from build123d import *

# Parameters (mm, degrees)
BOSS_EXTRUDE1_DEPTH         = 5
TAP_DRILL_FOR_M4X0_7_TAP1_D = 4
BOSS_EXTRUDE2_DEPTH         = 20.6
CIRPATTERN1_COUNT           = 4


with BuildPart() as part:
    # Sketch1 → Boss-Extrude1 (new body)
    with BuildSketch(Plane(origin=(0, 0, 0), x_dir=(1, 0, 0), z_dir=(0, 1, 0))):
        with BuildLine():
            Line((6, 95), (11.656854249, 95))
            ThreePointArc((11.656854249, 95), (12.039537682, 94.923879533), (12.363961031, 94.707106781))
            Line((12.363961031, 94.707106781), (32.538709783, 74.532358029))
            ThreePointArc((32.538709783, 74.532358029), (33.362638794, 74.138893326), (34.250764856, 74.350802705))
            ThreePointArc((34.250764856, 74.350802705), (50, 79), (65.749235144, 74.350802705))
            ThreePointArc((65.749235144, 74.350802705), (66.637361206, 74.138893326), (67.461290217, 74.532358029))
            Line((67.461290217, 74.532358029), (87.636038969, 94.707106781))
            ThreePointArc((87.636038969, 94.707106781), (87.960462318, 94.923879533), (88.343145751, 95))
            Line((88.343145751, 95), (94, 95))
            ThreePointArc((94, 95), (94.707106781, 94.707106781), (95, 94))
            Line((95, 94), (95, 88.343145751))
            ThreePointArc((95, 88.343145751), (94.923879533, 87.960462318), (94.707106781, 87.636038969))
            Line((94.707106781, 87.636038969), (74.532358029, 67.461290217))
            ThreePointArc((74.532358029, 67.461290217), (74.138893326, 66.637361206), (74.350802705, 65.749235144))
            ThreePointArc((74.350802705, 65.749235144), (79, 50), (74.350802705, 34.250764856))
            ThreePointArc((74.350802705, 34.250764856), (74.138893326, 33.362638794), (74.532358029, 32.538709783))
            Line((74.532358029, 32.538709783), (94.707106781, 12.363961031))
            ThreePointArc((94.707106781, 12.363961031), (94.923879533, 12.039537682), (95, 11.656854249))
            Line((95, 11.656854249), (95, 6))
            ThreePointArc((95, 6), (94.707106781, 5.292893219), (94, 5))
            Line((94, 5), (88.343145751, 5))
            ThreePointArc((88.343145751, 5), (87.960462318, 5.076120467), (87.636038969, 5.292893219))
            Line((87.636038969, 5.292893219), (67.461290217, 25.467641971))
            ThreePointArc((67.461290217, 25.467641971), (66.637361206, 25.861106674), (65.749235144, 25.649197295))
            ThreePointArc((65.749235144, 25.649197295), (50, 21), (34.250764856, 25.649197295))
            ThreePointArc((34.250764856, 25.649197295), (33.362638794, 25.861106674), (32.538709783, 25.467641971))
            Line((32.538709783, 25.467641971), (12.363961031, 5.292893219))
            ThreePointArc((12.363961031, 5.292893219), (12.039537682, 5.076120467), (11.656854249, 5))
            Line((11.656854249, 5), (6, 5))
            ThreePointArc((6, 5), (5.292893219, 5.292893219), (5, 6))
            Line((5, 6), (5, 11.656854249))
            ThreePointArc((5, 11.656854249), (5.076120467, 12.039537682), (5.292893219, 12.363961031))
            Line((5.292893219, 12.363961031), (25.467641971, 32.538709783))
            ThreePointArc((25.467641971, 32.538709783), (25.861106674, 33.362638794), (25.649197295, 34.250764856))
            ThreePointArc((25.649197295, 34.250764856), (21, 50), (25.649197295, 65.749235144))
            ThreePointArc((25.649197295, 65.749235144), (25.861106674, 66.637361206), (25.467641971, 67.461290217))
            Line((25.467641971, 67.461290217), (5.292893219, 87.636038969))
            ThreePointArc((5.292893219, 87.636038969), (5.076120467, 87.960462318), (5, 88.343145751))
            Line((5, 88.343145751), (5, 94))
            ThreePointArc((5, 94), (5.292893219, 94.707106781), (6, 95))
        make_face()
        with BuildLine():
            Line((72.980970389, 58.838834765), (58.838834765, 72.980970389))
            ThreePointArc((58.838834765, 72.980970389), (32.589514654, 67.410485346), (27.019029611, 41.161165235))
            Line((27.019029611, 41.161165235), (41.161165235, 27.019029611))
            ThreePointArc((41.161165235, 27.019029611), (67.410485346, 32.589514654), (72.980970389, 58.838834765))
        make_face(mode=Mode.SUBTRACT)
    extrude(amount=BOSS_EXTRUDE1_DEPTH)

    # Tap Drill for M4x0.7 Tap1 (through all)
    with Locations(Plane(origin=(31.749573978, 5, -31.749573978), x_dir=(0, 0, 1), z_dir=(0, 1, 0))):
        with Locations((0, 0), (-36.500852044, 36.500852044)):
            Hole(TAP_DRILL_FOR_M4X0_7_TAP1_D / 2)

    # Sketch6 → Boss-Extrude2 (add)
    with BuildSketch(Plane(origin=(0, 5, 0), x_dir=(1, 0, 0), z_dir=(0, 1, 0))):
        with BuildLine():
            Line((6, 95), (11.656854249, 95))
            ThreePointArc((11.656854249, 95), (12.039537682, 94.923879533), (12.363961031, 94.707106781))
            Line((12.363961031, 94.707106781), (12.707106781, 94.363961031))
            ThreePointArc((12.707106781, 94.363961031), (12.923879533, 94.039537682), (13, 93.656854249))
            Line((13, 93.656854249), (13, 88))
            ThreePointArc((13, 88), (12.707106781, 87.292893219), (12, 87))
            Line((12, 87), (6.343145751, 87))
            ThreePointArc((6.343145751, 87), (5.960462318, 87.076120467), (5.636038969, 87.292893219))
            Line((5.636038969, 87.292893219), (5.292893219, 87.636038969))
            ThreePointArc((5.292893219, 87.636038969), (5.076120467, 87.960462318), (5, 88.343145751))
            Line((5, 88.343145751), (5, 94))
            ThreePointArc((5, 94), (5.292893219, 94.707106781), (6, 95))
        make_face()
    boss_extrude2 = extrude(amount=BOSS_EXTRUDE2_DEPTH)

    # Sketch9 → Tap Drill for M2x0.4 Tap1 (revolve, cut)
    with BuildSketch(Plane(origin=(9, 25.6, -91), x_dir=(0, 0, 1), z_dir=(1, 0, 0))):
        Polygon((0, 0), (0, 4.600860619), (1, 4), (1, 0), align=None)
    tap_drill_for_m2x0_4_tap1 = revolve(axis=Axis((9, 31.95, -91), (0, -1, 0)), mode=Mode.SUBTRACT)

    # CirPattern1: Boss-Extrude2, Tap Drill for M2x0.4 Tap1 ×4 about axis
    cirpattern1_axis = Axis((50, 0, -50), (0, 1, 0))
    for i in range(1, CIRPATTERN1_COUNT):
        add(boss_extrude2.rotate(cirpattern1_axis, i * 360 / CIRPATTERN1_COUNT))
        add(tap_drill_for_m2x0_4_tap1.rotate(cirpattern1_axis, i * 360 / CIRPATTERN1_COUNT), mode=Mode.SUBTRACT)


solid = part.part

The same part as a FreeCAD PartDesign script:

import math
import FreeCAD as App
import Part
import Sketcher
Q = App.Units.Quantity

doc = App.newDocument("Part")
params = doc.addObject("Spreadsheet::Sheet", "Params")
for row, (alias, value) in enumerate([
    ("sketch1_radius", "1 mm"),
    ("sketch1_radius2", "29 mm"),
    ("sketch1_length", "20 mm"),
    ("pad1_length", "5 mm"),
    ("sketch2_diameter", "4 mm"),
    ("hole_diameter", "4 mm"),
    ("sketch3_radius", "1 mm"),
    ("pad2_length", "20.6 mm"),
    ("sketch4_width", "4 mm"),
    ("sketch4_height", "1 mm"),
    ("groove_angle", "360 deg"),
], start=1):
    params.set(f"A{row}", alias)
    params.set(f"B{row}", "=" + value)
    params.setAlias(f"B{row}", alias)

body = doc.addObject("PartDesign::Body", "Body")

# Sketch on XZ plane
sketch1 = body.newObject("Sketcher::SketchObject", "Sketch")
sketch1.AttachmentSupport = (doc.getObject("XZ_Plane"), [""])
sketch1.MapMode = "FlatFace"
sketch1.addGeometry(Part.LineSegment(App.Vector(11.7, -95, 0), App.Vector(6, -95, 0)), False)
sketch1.addGeometry(Part.ArcOfCircle(Part.Circle(App.Vector(6, -94, 0), App.Vector(0, 0, 1), 1), math.radians(-180), math.radians(-90)), False)
sketch1.addGeometry(Part.LineSegment(App.Vector(5, -94, 0), App.Vector(5, -88.3, 0)), False)
sketch1.addGeometry(Part.ArcOfCircle(Part.Circle(App.Vector(6, -88.3, 0), App.Vector(0, 0, 1), 1), math.radians(135), math.radians(180)), False)
sketch1.addGeometry(Part.LineSegment(App.Vector(5.3, -87.6, 0), App.Vector(25.5, -67.5, 0)), False)
sketch1.addGeometry(Part.ArcOfCircle(Part.Circle(App.Vector(24.5, -66.5, 0), App.Vector(0, 0, 1), 1.4), math.radians(-45), math.radians(33)), False)
sketch1.addGeometry(Part.ArcOfCircle(Part.Circle(App.Vector(50, -50, 0), App.Vector(0, 0, 1), 29), math.radians(147), math.radians(213)), False)
sketch1.addGeometry(Part.ArcOfCircle(Part.Circle(App.Vector(24.5, -33.5, 0), App.Vector(0, 0, 1), 1.4), math.radians(-33), math.radians(45)), False)
sketch1.addGeometry(Part.LineSegment(App.Vector(25.5, -32.5, 0), App.Vector(5.3, -12.4, 0)), False)
sketch1.addGeometry(Part.ArcOfCircle(Part.Circle(App.Vector(6, -11.7, 0), App.Vector(0, 0, 1), 1), math.radians(180), math.radians(225)), False)
sketch1.addGeometry(Part.LineSegment(App.Vector(5, -11.7, 0), App.Vector(5, -6, 0)), False)
sketch1.addGeometry(Part.ArcOfCircle(Part.Circle(App.Vector(6, -6, 0), App.Vector(0, 0, 1), 1), math.radians(90), math.radians(180)), False)
sketch1.addGeometry(Part.LineSegment(App.Vector(6, -5, 0), App.Vector(11.7, -5, 0)), False)
sketch1.addGeometry(Part.ArcOfCircle(Part.Circle(App.Vector(11.7, -6, 0), App.Vector(0, 0, 1), 1), math.radians(45), math.radians(90)), False)
sketch1.addGeometry(Part.LineSegment(App.Vector(12.4, -5.3, 0), App.Vector(32.5, -25.5, 0)), False)
sketch1.addGeometry(Part.ArcOfCircle(Part.Circle(App.Vector(33.5, -24.5, 0), App.Vector(0, 0, 1), 1.4), math.radians(-135), math.radians(-57)), False)
sketch1.addGeometry(Part.ArcOfCircle(Part.Circle(App.Vector(50, -50, 0), App.Vector(0, 0, 1), 29), math.radians(57), math.radians(123)), False)
sketch1.addGeometry(Part.ArcOfCircle(Part.Circle(App.Vector(66.5, -24.5, 0), App.Vector(0, 0, 1), 1.4), math.radians(-123), math.radians(-45)), False)
sketch1.addGeometry(Part.LineSegment(App.Vector(67.5, -25.5, 0), App.Vector(87.6, -5.3, 0)), False)
sketch1.addGeometry(Part.ArcOfCircle(Part.Circle(App.Vector(88.3, -6, 0), App.Vector(0, 0, 1), 1), math.radians(90), math.radians(135)), False)
sketch1.addGeometry(Part.LineSegment(App.Vector(88.3, -5, 0), App.Vector(94, -5, 0)), False)
sketch1.addGeometry(Part.ArcOfCircle(Part.Circle(App.Vector(94, -6, 0), App.Vector(0, 0, 1), 1), math.radians(0), math.radians(90)), False)
sketch1.addGeometry(Part.LineSegment(App.Vector(95, -6, 0), App.Vector(95, -11.7, 0)), False)
sketch1.addGeometry(Part.ArcOfCircle(Part.Circle(App.Vector(94, -11.7, 0), App.Vector(0, 0, 1), 1), math.radians(-45), math.radians(0)), False)
sketch1.addGeometry(Part.LineSegment(App.Vector(94.7, -12.4, 0), App.Vector(74.5, -32.5, 0)), False)
sketch1.addGeometry(Part.ArcOfCircle(Part.Circle(App.Vector(75.5, -33.5, 0), App.Vector(0, 0, 1), 1.4), math.radians(135), math.radians(213)), False)
sketch1.addGeometry(Part.ArcOfCircle(Part.Circle(App.Vector(50, -50, 0), App.Vector(0, 0, 1), 29), math.radians(-33), math.radians(33)), False)
sketch1.addGeometry(Part.ArcOfCircle(Part.Circle(App.Vector(75.5, -66.5, 0), App.Vector(0, 0, 1), 1.4), math.radians(147), math.radians(225)), False)
sketch1.addGeometry(Part.LineSegment(App.Vector(74.5, -67.5, 0), App.Vector(94.7, -87.6, 0)), False)
sketch1.addGeometry(Part.ArcOfCircle(Part.Circle(App.Vector(94, -88.3, 0), App.Vector(0, 0, 1), 1), math.radians(0), math.radians(45)), False)
sketch1.addGeometry(Part.LineSegment(App.Vector(95, -88.3, 0), App.Vector(95, -94, 0)), False)
sketch1.addGeometry(Part.ArcOfCircle(Part.Circle(App.Vector(94, -94, 0), App.Vector(0, 0, 1), 1), math.radians(-90), math.radians(0)), False)
sketch1.addGeometry(Part.LineSegment(App.Vector(94, -95, 0), App.Vector(88.3, -95, 0)), False)
sketch1.addGeometry(Part.ArcOfCircle(Part.Circle(App.Vector(88.3, -94, 0), App.Vector(0, 0, 1), 1), math.radians(-135), math.radians(-90)), False)
sketch1.addGeometry(Part.LineSegment(App.Vector(87.6, -94.7, 0), App.Vector(67.5, -74.5, 0)), False)
sketch1.addGeometry(Part.ArcOfCircle(Part.Circle(App.Vector(66.5, -75.5, 0), App.Vector(0, 0, 1), 1.4), math.radians(45), math.radians(123)), False)
sketch1.addGeometry(Part.ArcOfCircle(Part.Circle(App.Vector(50, -50, 0), App.Vector(0, 0, 1), 29), math.radians(-123), math.radians(-57)), False)
sketch1.addGeometry(Part.ArcOfCircle(Part.Circle(App.Vector(33.5, -75.5, 0), App.Vector(0, 0, 1), 1.4), math.radians(57), math.radians(135)), False)
sketch1.addGeometry(Part.LineSegment(App.Vector(32.5, -74.5, 0), App.Vector(12.4, -94.7, 0)), False)
sketch1.addGeometry(Part.ArcOfCircle(Part.Circle(App.Vector(11.7, -94, 0), App.Vector(0, 0, 1), 1), math.radians(-90), math.radians(-45)), False)
sketch1.addGeometry(Part.ArcOfCircle(Part.Circle(App.Vector(50, -50, 0), App.Vector(0, 0, 1), 24.6), math.radians(-21), math.radians(111)), False)
sketch1.addGeometry(Part.LineSegment(App.Vector(41.2, -27, 0), App.Vector(27, -41.2, 0)), False)
sketch1.addGeometry(Part.ArcOfCircle(Part.Circle(App.Vector(50, -50, 0), App.Vector(0, 0, 1), 24.6), math.radians(159), math.radians(291)), False)
sketch1.addGeometry(Part.LineSegment(App.Vector(58.8, -73, 0), App.Vector(73, -58.8, 0)), False)
sketch1.addConstraint(Sketcher.Constraint("Tangent", 0, 2, 1, 2))
sketch1.addConstraint(Sketcher.Constraint("Tangent", 1, 1, 2, 1))
sketch1.addConstraint(Sketcher.Constraint("Tangent", 2, 2, 3, 2))
sketch1.addConstraint(Sketcher.Constraint("Tangent", 3, 1, 4, 1))
sketch1.addConstraint(Sketcher.Constraint("Tangent", 4, 2, 5, 1))
sketch1.addConstraint(Sketcher.Constraint("Tangent", 5, 2, 6, 2))
sketch1.addConstraint(Sketcher.Constraint("Tangent", 6, 1, 7, 1))
sketch1.addConstraint(Sketcher.Constraint("Tangent", 7, 2, 8, 1))
sketch1.addConstraint(Sketcher.Constraint("Tangent", 8, 2, 9, 2))
sketch1.addConstraint(Sketcher.Constraint("Tangent", 9, 1, 10, 1))
sketch1.addConstraint(Sketcher.Constraint("Tangent", 10, 2, 11, 2))
sketch1.addConstraint(Sketcher.Constraint("Tangent", 11, 1, 12, 1))
sketch1.addConstraint(Sketcher.Constraint("Tangent", 12, 2, 13, 2))
sketch1.addConstraint(Sketcher.Constraint("Tangent", 13, 1, 14, 1))
sketch1.addConstraint(Sketcher.Constraint("Tangent", 14, 2, 15, 1))
sketch1.addConstraint(Sketcher.Constraint("Tangent", 15, 2, 16, 2))
sketch1.addConstraint(Sketcher.Constraint("Tangent", 16, 1, 17, 1))
sketch1.addConstraint(Sketcher.Constraint("Tangent", 17, 2, 18, 1))
sketch1.addConstraint(Sketcher.Constraint("Tangent", 18, 2, 19, 2))
sketch1.addConstraint(Sketcher.Constraint("Tangent", 19, 1, 20, 1))
sketch1.addConstraint(Sketcher.Constraint("Tangent", 20, 2, 21, 2))
sketch1.addConstraint(Sketcher.Constraint("Tangent", 21, 1, 22, 1))
sketch1.addConstraint(Sketcher.Constraint("Tangent", 22, 2, 23, 2))
sketch1.addConstraint(Sketcher.Constraint("Tangent", 23, 1, 24, 1))
sketch1.addConstraint(Sketcher.Constraint("Tangent", 24, 2, 25, 1))
sketch1.addConstraint(Sketcher.Constraint("Tangent", 25, 2, 26, 2))
sketch1.addConstraint(Sketcher.Constraint("Tangent", 26, 1, 27, 1))
sketch1.addConstraint(Sketcher.Constraint("Tangent", 27, 2, 28, 1))
sketch1.addConstraint(Sketcher.Constraint("Tangent", 28, 2, 29, 2))
sketch1.addConstraint(Sketcher.Constraint("Tangent", 29, 1, 30, 1))
sketch1.addConstraint(Sketcher.Constraint("Tangent", 30, 2, 31, 2))
sketch1.addConstraint(Sketcher.Constraint("Tangent", 31, 1, 32, 1))
sketch1.addConstraint(Sketcher.Constraint("Tangent", 32, 2, 33, 2))
sketch1.addConstraint(Sketcher.Constraint("Tangent", 33, 1, 34, 1))
sketch1.addConstraint(Sketcher.Constraint("Tangent", 34, 2, 35, 1))
sketch1.addConstraint(Sketcher.Constraint("Tangent", 35, 2, 36, 2))
sketch1.addConstraint(Sketcher.Constraint("Tangent", 36, 1, 37, 1))
sketch1.addConstraint(Sketcher.Constraint("Tangent", 37, 2, 38, 1))
sketch1.addConstraint(Sketcher.Constraint("Tangent", 38, 2, 39, 2))
sketch1.addConstraint(Sketcher.Constraint("Tangent", 39, 1, 0, 1))
sketch1.addConstraint(Sketcher.Constraint("Coincident", 40, 2, 41, 1))
sketch1.addConstraint(Sketcher.Constraint("Coincident", 41, 2, 42, 1))
sketch1.addConstraint(Sketcher.Constraint("Coincident", 42, 2, 43, 1))
sketch1.addConstraint(Sketcher.Constraint("Coincident", 43, 2, 40, 1))
sketch1.addConstraint(Sketcher.Constraint("Horizontal", 0))
sketch1.addConstraint(Sketcher.Constraint("Vertical", 2))
sketch1.addConstraint(Sketcher.Constraint("Vertical", 10))
sketch1.addConstraint(Sketcher.Constraint("Horizontal", 12))
sketch1.addConstraint(Sketcher.Constraint("Horizontal", 20))
sketch1.addConstraint(Sketcher.Constraint("Vertical", 22))
sketch1.addConstraint(Sketcher.Constraint("Vertical", 30))
sketch1.addConstraint(Sketcher.Constraint("Horizontal", 32))
sketch1.addConstraint(Sketcher.Constraint("Coincident", 16, 3, 6, 3))
sketch1.addConstraint(Sketcher.Constraint("Coincident", 26, 3, 6, 3))
sketch1.addConstraint(Sketcher.Constraint("Coincident", 36, 3, 6, 3))
sketch1.addConstraint(Sketcher.Constraint("Coincident", 40, 3, 6, 3))
sketch1.addConstraint(Sketcher.Constraint("Coincident", 42, 3, 6, 3))
sketch1.addConstraint(Sketcher.Constraint("Equal", 1, 3))
sketch1.addConstraint(Sketcher.Constraint("Equal", 5, 7))
sketch1.addConstraint(Sketcher.Constraint("Equal", 3, 9))
sketch1.addConstraint(Sketcher.Constraint("Equal", 9, 11))
sketch1.addConstraint(Sketcher.Constraint("Equal", 11, 13))
sketch1.addConstraint(Sketcher.Constraint("Equal", 7, 15))
sketch1.addConstraint(Sketcher.Constraint("Equal", 6, 16))
sketch1.addConstraint(Sketcher.Constraint("Equal", 15, 17))
sketch1.addConstraint(Sketcher.Constraint("Equal", 13, 19))
sketch1.addConstraint(Sketcher.Constraint("Equal", 19, 21))
sketch1.addConstraint(Sketcher.Constraint("Equal", 21, 23))
sketch1.addConstraint(Sketcher.Constraint("Equal", 17, 25))
sketch1.addConstraint(Sketcher.Constraint("Equal", 16, 26))
sketch1.addConstraint(Sketcher.Constraint("Equal", 25, 27))
sketch1.addConstraint(Sketcher.Constraint("Equal", 23, 29))
sketch1.addConstraint(Sketcher.Constraint("Equal", 29, 31))
sketch1.addConstraint(Sketcher.Constraint("Equal", 31, 33))
sketch1.addConstraint(Sketcher.Constraint("Equal", 27, 35))
sketch1.addConstraint(Sketcher.Constraint("Equal", 26, 36))
sketch1.addConstraint(Sketcher.Constraint("Equal", 35, 37))
sketch1.addConstraint(Sketcher.Constraint("Equal", 33, 39))
sketch1.addConstraint(Sketcher.Constraint("Equal", 40, 42))
sketch1.addConstraint(Sketcher.Constraint("Perpendicular", 4, 8))
sketch1.addConstraint(Sketcher.Constraint("Parallel", 8, 14))
sketch1.addConstraint(Sketcher.Constraint("Perpendicular", 14, 18))
sketch1.addConstraint(Sketcher.Constraint("Parallel", 18, 24))
sketch1.addConstraint(Sketcher.Constraint("Perpendicular", 24, 28))
sketch1.addConstraint(Sketcher.Constraint("Parallel", 28, 34))
sketch1.addConstraint(Sketcher.Constraint("Perpendicular", 34, 38))
sketch1.addConstraint(Sketcher.Constraint("Parallel", 38, 41))
sketch1.addConstraint(Sketcher.Constraint("Parallel", 41, 43))
sketch1.addConstraint(Sketcher.Constraint("Horizontal", 15, 3, 17, 3))
sketch1.addConstraint(Sketcher.Constraint("Horizontal", 13, 3, 19, 3))
sketch1.addConstraint(Sketcher.Constraint("Horizontal", 9, 3, 23, 3))
sketch1.addConstraint(Sketcher.Constraint("Horizontal", 7, 3, 25, 3))
sketch1.addConstraint(Sketcher.Constraint("Horizontal", 5, 3, 27, 3))
sketch1.addConstraint(Sketcher.Constraint("Horizontal", 3, 3, 29, 3))
sketch1.addConstraint(Sketcher.Constraint("Horizontal", 1, 3, 31, 3))
sketch1.addConstraint(Sketcher.Constraint("Horizontal", 35, 3, 37, 3))
sketch1.addConstraint(Sketcher.Constraint("Horizontal", 14, 2, 17, 2))
sketch1.addConstraint(Sketcher.Constraint("Vertical", 5, 3, 7, 3))
sketch1.addConstraint(Sketcher.Constraint("Vertical", 3, 3, 9, 3))
sketch1.addConstraint(Sketcher.Constraint("Vertical", 19, 3, 33, 3))
sketch1.addConstraint(Sketcher.Constraint("Vertical", 17, 3, 35, 3))
sketch1.addConstraint(Sketcher.Constraint("Equal", 32, 2))
sketch1.addConstraint(Sketcher.Constraint("Equal", 8, 14))
sketch1.addConstraint(Sketcher.Constraint("Equal", 41, 43))
sketch1.addConstraint(Sketcher.Constraint("Radius", 1, Q("1 mm")))
sketch1.addConstraint(Sketcher.Constraint("Radius", 6, Q("29 mm")))
sketch1.addConstraint(Sketcher.Constraint("Distance", 41, Q("20 mm")))
sketch1.addConstraint(Sketcher.Constraint("DistanceX", -1, 1, 1, 3, Q("6 mm")))
sketch1.addConstraint(Sketcher.Constraint("DistanceY", 1, 3, -1, 1, Q("94 mm")))
sketch1.addConstraint(Sketcher.Constraint("DistanceX", -1, 1, 6, 3, Q("50 mm")))
sketch1.addConstraint(Sketcher.Constraint("Radius", 5, Q("1.369443 mm")))
sketch1.addConstraint(Sketcher.Constraint("Radius", 40, Q("24.622145 mm")))
sketch1.addConstraint(Sketcher.Constraint("DistanceX", -1, 1, 5, 3, Q("24.4993 mm")))
sketch1.setExpression("Constraints[104]", "Params.sketch1_radius")
sketch1.setExpression("Constraints[105]", "Params.sketch1_radius2")
sketch1.setExpression("Constraints[106]", "Params.sketch1_length")
pad1 = body.newObject("PartDesign::Pad", "Pad")
pad1.Profile = sketch1
pad1.setExpression("Length", "Params.pad1_length")
pad1.Reversed = True

# Sketch on XZ plane
sketch2 = body.newObject("Sketcher::SketchObject", "Sketch001")
sketch2.AttachmentSupport = (doc.getObject("XZ_Plane"), [""])
sketch2.MapMode = "FlatFace"
sketch2.AttachmentOffset = App.Placement(App.Vector(0, 0, -5), App.Rotation())
sketch2.addGeometry(Part.Circle(App.Vector(31.7, -31.7, 0), App.Vector(0, 0, 1), 2), False)
sketch2.addGeometry(Part.Circle(App.Vector(68.3, -68.3, 0), App.Vector(0, 0, 1), 2), False)
sketch2.addConstraint(Sketcher.Constraint("Equal", 0, 1))
sketch2.addConstraint(Sketcher.Constraint("Diameter", 0, Q("4 mm")))
sketch2.addConstraint(Sketcher.Constraint("DistanceX", -1, 1, 0, 3, Q("31.749574 mm")))
sketch2.addConstraint(Sketcher.Constraint("DistanceY", 0, 3, -1, 1, Q("31.749574 mm")))
sketch2.addConstraint(Sketcher.Constraint("DistanceX", -1, 1, 1, 3, Q("68.250426 mm")))
sketch2.addConstraint(Sketcher.Constraint("DistanceY", 1, 3, -1, 1, Q("68.250426 mm")))
sketch2.setExpression("Constraints[1]", "Params.sketch2_diameter")
doc.recompute()
hole = body.newObject("PartDesign::Hole", "Hole")
hole.Profile = sketch2
hole.ThreadType = "None"
hole.setExpression("Diameter", "Params.hole_diameter")
hole.DepthType = "ThroughAll"
hole.Reversed = True

# Sketch on XZ plane
sketch3 = body.newObject("Sketcher::SketchObject", "Sketch002")
sketch3.AttachmentSupport = (doc.getObject("XZ_Plane"), [""])
sketch3.MapMode = "FlatFace"
sketch3.AttachmentOffset = App.Placement(App.Vector(0, 0, -5), App.Rotation())
sketch3.addGeometry(Part.LineSegment(App.Vector(11.66, -95, 0), App.Vector(6, -95, 0)), False)
sketch3.addGeometry(Part.ArcOfCircle(Part.Circle(App.Vector(6, -94, 0), App.Vector(0, 0, 1), 1), math.radians(-180), math.radians(-90)), False)
sketch3.addGeometry(Part.LineSegment(App.Vector(5, -94, 0), App.Vector(5, -88.34, 0)), False)
sketch3.addGeometry(Part.ArcOfCircle(Part.Circle(App.Vector(6, -88.34, 0), App.Vector(0, 0, 1), 1), math.radians(135), math.radians(180)), False)
sketch3.addGeometry(Part.LineSegment(App.Vector(5.29, -87.64, 0), App.Vector(5.64, -87.29, 0)), False)
sketch3.addGeometry(Part.ArcOfCircle(Part.Circle(App.Vector(6.34, -88, 0), App.Vector(0, 0, 1), 1), math.radians(90), math.radians(135)), False)
sketch3.addGeometry(Part.LineSegment(App.Vector(6.34, -87, 0), App.Vector(12, -87, 0)), False)
sketch3.addGeometry(Part.ArcOfCircle(Part.Circle(App.Vector(12, -88, 0), App.Vector(0, 0, 1), 1), math.radians(0), math.radians(90)), False)
sketch3.addGeometry(Part.LineSegment(App.Vector(13, -88, 0), App.Vector(13, -93.66, 0)), False)
sketch3.addGeometry(Part.ArcOfCircle(Part.Circle(App.Vector(12, -93.66, 0), App.Vector(0, 0, 1), 1), math.radians(-45), math.radians(0)), False)
sketch3.addGeometry(Part.LineSegment(App.Vector(12.71, -94.36, 0), App.Vector(12.36, -94.71, 0)), False)
sketch3.addGeometry(Part.ArcOfCircle(Part.Circle(App.Vector(11.66, -94, 0), App.Vector(0, 0, 1), 1), math.radians(-90), math.radians(-45)), False)
sketch3.addConstraint(Sketcher.Constraint("Tangent", 0, 2, 1, 2))
sketch3.addConstraint(Sketcher.Constraint("Tangent", 1, 1, 2, 1))
sketch3.addConstraint(Sketcher.Constraint("Tangent", 2, 2, 3, 2))
sketch3.addConstraint(Sketcher.Constraint("Tangent", 3, 1, 4, 1))
sketch3.addConstraint(Sketcher.Constraint("Tangent", 4, 2, 5, 2))
sketch3.addConstraint(Sketcher.Constraint("Tangent", 5, 1, 6, 1))
sketch3.addConstraint(Sketcher.Constraint("Tangent", 6, 2, 7, 2))
sketch3.addConstraint(Sketcher.Constraint("Tangent", 7, 1, 8, 1))
sketch3.addConstraint(Sketcher.Constraint("Tangent", 8, 2, 9, 2))
sketch3.addConstraint(Sketcher.Constraint("Tangent", 9, 1, 10, 1))
sketch3.addConstraint(Sketcher.Constraint("Tangent", 10, 2, 11, 2))
sketch3.addConstraint(Sketcher.Constraint("Tangent", 11, 1, 0, 1))
sketch3.addConstraint(Sketcher.Constraint("Horizontal", 0))
sketch3.addConstraint(Sketcher.Constraint("Vertical", 2))
sketch3.addConstraint(Sketcher.Constraint("Horizontal", 6))
sketch3.addConstraint(Sketcher.Constraint("Vertical", 8))
sketch3.addConstraint(Sketcher.Constraint("Equal", 1, 3))
sketch3.addConstraint(Sketcher.Constraint("Equal", 3, 5))
sketch3.addConstraint(Sketcher.Constraint("Equal", 5, 7))
sketch3.addConstraint(Sketcher.Constraint("Equal", 7, 9))
sketch3.addConstraint(Sketcher.Constraint("Equal", 9, 11))
sketch3.addConstraint(Sketcher.Constraint("Parallel", 4, 10))
sketch3.addConstraint(Sketcher.Constraint("Equal", 0, 6))
sketch3.addConstraint(Sketcher.Constraint("Equal", 6, 2))
sketch3.addConstraint(Sketcher.Constraint("Radius", 1, Q("1 mm")))
sketch3.addConstraint(Sketcher.Constraint("Angle", 4, Q("45 deg")))
sketch3.addConstraint(Sketcher.Constraint("DistanceX", -1, 1, 1, 3, Q("6 mm")))
sketch3.addConstraint(Sketcher.Constraint("DistanceY", 1, 3, -1, 1, Q("94 mm")))
sketch3.addConstraint(Sketcher.Constraint("DistanceY", 5, 3, -1, 1, Q("88 mm")))
sketch3.addConstraint(Sketcher.Constraint("Distance", 4, Q("0.485281 mm")))
sketch3.setExpression("Constraints[24]", "Params.sketch3_radius")
pad2 = body.newObject("PartDesign::Pad", "Pad001")
pad2.Profile = sketch3
pad2.setExpression("Length", "Params.pad2_length")
pad2.Reversed = True

# Sketch on YZ plane
sketch4 = body.newObject("Sketcher::SketchObject", "Sketch003")
sketch4.AttachmentSupport = (doc.getObject("YZ_Plane"), [""])
sketch4.MapMode = "FlatFace"
sketch4.AttachmentOffset = App.Placement(App.Vector(0, 0, 9), App.Rotation())
sketch4.addGeometry(Part.LineSegment(App.Vector(21, -91, 0), App.Vector(25.6, -91, 0)), False)
sketch4.addGeometry(Part.LineSegment(App.Vector(25.6, -91, 0), App.Vector(25.6, -90, 0)), False)
sketch4.addGeometry(Part.LineSegment(App.Vector(25.6, -90, 0), App.Vector(21.6, -90, 0)), False)
sketch4.addGeometry(Part.LineSegment(App.Vector(21.6, -90, 0), App.Vector(21, -91, 0)), False)
sketch4.addGeometry(Part.LineSegment(App.Vector(25.6, -91, 0), App.Vector(21, -91, 0)), True)  # axis
sketch4.addConstraint(Sketcher.Constraint("Coincident", 0, 2, 1, 1))
sketch4.addConstraint(Sketcher.Constraint("Coincident", 1, 2, 2, 1))
sketch4.addConstraint(Sketcher.Constraint("Coincident", 2, 2, 3, 1))
sketch4.addConstraint(Sketcher.Constraint("Coincident", 3, 2, 0, 1))
sketch4.addConstraint(Sketcher.Constraint("Horizontal", 0))
sketch4.addConstraint(Sketcher.Constraint("Vertical", 1))
sketch4.addConstraint(Sketcher.Constraint("Horizontal", 2))
sketch4.addConstraint(Sketcher.Constraint("Horizontal", 4))
sketch4.addConstraint(Sketcher.Constraint("Coincident", 4, 1, 0, 2))
sketch4.addConstraint(Sketcher.Constraint("Equal", 0, 4))
sketch4.addConstraint(Sketcher.Constraint("DistanceX", 2, 2, 2, 1, Q("4 mm")))
sketch4.addConstraint(Sketcher.Constraint("DistanceY", 1, 1, 1, 2, Q("1 mm")))
sketch4.addConstraint(Sketcher.Constraint("Angle", 3, Q("-121 deg")))
sketch4.addConstraint(Sketcher.Constraint("DistanceY", 0, 2, -1, 1, Q("91 mm")))
sketch4.addConstraint(Sketcher.Constraint("DistanceX", -1, 1, 0, 2, Q("25.6 mm")))
sketch4.setExpression("Constraints[10]", "Params.sketch4_width")
sketch4.setExpression("Constraints[11]", "Params.sketch4_height")
groove = body.newObject("PartDesign::Groove", "Groove")
groove.Profile = sketch4
groove.ReferenceAxis = (sketch4, ["Axis0"])
groove.setExpression("Angle", "Params.groove_angle")
doc.recompute()

datumline = body.newObject("PartDesign::Line", "DatumLine")
datumline.Placement = App.Placement(App.Vector(50, 0, -50), App.Rotation(App.Vector(0, 0, 1), App.Vector(0, 1, 0)))
polarpattern = body.newObject("PartDesign::PolarPattern", "PolarPattern")
polarpattern.Originals = [pad2, groove]
polarpattern.Axis = (datumline, [""])
polarpattern.Angle = 360
polarpattern.Occurrences = 4
body.Tip = polarpattern

doc.recompute()
